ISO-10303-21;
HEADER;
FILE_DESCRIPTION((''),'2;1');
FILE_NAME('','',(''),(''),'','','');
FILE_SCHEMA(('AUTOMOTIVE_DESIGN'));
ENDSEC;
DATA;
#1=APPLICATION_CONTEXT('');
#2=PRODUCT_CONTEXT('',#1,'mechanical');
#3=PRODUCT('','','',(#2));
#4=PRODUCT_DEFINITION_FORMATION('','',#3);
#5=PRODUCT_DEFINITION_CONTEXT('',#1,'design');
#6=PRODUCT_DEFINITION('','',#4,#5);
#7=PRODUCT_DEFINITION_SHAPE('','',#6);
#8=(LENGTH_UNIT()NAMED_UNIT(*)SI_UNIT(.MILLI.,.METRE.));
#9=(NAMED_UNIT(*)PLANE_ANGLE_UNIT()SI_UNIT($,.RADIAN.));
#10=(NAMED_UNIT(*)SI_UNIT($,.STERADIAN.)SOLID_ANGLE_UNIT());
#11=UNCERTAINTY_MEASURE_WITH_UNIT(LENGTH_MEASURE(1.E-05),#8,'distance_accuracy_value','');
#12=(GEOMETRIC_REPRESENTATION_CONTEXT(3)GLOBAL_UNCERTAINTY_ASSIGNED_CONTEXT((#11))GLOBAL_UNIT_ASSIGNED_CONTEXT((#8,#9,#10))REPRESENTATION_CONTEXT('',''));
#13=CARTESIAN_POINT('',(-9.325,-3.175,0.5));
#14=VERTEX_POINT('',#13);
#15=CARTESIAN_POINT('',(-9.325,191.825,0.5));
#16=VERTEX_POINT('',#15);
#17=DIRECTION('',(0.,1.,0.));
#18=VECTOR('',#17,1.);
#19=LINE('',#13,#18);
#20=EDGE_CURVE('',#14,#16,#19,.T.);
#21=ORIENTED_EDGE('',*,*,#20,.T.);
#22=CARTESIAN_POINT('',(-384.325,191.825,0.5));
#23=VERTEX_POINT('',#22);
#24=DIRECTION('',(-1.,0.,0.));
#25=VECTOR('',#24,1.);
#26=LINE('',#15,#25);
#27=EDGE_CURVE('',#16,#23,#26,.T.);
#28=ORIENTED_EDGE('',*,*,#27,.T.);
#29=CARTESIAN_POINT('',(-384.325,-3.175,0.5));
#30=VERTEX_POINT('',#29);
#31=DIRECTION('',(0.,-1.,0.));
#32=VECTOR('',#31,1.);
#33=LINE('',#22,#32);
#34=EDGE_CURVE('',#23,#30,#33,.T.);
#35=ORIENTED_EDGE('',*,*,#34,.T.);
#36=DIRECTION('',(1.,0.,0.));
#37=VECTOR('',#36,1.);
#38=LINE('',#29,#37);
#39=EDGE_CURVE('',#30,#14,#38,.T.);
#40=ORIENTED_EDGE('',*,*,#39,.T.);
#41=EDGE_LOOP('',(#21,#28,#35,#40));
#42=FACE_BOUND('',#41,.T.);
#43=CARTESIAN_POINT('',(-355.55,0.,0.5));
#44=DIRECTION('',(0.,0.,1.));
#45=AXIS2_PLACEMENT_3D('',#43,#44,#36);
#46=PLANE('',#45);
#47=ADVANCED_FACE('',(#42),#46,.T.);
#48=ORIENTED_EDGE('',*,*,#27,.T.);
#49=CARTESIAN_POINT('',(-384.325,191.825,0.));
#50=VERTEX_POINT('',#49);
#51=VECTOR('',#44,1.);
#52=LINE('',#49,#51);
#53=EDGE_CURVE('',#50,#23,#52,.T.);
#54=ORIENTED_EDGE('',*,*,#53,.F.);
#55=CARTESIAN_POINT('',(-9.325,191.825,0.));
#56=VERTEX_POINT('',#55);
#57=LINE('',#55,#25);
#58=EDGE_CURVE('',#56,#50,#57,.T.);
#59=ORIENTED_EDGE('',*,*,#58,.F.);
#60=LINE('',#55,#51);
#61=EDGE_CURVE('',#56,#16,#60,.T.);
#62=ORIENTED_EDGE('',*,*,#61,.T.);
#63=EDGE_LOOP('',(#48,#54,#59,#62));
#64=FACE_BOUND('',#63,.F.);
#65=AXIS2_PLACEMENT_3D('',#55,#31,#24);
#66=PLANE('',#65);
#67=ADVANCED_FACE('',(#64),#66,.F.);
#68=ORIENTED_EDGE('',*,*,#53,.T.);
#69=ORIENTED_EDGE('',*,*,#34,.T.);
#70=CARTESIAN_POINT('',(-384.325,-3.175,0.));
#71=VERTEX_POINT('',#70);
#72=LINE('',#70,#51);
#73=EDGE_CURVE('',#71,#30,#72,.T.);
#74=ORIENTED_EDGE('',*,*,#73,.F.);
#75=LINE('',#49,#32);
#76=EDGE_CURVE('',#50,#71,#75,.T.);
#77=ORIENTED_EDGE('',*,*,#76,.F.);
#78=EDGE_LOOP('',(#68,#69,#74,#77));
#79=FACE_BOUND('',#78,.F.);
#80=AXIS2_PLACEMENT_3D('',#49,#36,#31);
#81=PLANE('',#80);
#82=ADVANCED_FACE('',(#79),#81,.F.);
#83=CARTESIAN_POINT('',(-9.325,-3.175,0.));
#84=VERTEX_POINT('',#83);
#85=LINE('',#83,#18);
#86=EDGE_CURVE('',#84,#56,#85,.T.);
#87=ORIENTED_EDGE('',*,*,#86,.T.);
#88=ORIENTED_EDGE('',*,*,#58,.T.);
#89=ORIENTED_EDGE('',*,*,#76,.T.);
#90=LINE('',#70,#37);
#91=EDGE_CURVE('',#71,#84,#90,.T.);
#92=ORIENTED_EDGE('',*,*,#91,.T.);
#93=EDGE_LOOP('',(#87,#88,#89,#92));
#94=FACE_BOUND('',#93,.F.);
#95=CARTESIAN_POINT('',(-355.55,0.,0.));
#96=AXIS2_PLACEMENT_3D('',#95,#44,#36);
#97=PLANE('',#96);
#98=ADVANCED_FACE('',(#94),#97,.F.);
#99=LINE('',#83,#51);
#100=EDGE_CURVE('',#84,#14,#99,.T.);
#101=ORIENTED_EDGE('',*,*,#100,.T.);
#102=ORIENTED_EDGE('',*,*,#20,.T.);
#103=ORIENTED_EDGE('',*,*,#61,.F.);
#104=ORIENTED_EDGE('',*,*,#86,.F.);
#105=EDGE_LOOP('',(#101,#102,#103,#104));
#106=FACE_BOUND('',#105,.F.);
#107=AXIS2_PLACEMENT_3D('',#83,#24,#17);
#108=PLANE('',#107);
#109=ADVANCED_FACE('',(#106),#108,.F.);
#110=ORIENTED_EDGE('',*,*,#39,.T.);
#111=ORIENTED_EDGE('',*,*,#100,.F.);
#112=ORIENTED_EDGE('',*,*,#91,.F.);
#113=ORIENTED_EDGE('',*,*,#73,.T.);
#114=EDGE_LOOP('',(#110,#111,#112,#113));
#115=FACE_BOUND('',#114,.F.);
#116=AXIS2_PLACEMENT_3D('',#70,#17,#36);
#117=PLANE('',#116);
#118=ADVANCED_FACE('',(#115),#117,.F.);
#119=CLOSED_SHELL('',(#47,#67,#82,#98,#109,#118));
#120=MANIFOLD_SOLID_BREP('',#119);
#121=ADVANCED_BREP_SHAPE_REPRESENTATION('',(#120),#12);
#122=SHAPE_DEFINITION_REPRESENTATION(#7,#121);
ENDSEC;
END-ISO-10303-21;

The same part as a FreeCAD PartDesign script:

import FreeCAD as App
import Part
import Sketcher

V = App.Vector


def add_polygon(sketch, points):
    """Adds a closed chain of lines whose ends are joined by coincident constraints."""
    first, n = sketch.GeometryCount, len(points)
    for a, b in zip(points, points[1:] + points[:1]):
        sketch.addGeometry(Part.LineSegment(App.Vector(*a, 0), App.Vector(*b, 0)), False)
    for i in range(n):
        sketch.addConstraint(Sketcher.Constraint("Coincident", first + i, 2, first + (i + 1) % n, 1))

doc = App.newDocument("Part")
body = doc.addObject("PartDesign::Body", "Body")

# Sketch on XY plane
sketch1 = doc.addObject("Sketcher::SketchObject", "Sketch")
body.addObject(sketch1)
sketch1.AttachmentSupport = (doc.XY_Plane, [""])
sketch1.MapMode = "FlatFace"
add_polygon(sketch1, [(-384, 192), (-384, -3), (-9, -3), (-9, 192)])  # lines 0-3
sketch1.addConstraint(Sketcher.Constraint("Vertical", 0))
sketch1.addConstraint(Sketcher.Constraint("Horizontal", 1))
sketch1.addConstraint(Sketcher.Constraint("Vertical", 2))
sketch1.addConstraint(Sketcher.Constraint("Horizontal", 3))
sketch1.addConstraint(Sketcher.Constraint("DistanceX", 1, 1, 1, 2, 375.0))
sketch1.addConstraint(Sketcher.Constraint("DistanceY", 0, 2, 0, 1, 195.0))
sketch1.addConstraint(Sketcher.Constraint("DistanceX", 0, 2, -1, 1, 384.325))
sketch1.addConstraint(Sketcher.Constraint("DistanceY", 0, 2, -1, 1, 3.175))
pad1 = doc.addObject("PartDesign::Pad", "Pad")
body.addObject(pad1)
pad1.Profile = sketch1
pad1.Length = 0.5

doc.recompute()
